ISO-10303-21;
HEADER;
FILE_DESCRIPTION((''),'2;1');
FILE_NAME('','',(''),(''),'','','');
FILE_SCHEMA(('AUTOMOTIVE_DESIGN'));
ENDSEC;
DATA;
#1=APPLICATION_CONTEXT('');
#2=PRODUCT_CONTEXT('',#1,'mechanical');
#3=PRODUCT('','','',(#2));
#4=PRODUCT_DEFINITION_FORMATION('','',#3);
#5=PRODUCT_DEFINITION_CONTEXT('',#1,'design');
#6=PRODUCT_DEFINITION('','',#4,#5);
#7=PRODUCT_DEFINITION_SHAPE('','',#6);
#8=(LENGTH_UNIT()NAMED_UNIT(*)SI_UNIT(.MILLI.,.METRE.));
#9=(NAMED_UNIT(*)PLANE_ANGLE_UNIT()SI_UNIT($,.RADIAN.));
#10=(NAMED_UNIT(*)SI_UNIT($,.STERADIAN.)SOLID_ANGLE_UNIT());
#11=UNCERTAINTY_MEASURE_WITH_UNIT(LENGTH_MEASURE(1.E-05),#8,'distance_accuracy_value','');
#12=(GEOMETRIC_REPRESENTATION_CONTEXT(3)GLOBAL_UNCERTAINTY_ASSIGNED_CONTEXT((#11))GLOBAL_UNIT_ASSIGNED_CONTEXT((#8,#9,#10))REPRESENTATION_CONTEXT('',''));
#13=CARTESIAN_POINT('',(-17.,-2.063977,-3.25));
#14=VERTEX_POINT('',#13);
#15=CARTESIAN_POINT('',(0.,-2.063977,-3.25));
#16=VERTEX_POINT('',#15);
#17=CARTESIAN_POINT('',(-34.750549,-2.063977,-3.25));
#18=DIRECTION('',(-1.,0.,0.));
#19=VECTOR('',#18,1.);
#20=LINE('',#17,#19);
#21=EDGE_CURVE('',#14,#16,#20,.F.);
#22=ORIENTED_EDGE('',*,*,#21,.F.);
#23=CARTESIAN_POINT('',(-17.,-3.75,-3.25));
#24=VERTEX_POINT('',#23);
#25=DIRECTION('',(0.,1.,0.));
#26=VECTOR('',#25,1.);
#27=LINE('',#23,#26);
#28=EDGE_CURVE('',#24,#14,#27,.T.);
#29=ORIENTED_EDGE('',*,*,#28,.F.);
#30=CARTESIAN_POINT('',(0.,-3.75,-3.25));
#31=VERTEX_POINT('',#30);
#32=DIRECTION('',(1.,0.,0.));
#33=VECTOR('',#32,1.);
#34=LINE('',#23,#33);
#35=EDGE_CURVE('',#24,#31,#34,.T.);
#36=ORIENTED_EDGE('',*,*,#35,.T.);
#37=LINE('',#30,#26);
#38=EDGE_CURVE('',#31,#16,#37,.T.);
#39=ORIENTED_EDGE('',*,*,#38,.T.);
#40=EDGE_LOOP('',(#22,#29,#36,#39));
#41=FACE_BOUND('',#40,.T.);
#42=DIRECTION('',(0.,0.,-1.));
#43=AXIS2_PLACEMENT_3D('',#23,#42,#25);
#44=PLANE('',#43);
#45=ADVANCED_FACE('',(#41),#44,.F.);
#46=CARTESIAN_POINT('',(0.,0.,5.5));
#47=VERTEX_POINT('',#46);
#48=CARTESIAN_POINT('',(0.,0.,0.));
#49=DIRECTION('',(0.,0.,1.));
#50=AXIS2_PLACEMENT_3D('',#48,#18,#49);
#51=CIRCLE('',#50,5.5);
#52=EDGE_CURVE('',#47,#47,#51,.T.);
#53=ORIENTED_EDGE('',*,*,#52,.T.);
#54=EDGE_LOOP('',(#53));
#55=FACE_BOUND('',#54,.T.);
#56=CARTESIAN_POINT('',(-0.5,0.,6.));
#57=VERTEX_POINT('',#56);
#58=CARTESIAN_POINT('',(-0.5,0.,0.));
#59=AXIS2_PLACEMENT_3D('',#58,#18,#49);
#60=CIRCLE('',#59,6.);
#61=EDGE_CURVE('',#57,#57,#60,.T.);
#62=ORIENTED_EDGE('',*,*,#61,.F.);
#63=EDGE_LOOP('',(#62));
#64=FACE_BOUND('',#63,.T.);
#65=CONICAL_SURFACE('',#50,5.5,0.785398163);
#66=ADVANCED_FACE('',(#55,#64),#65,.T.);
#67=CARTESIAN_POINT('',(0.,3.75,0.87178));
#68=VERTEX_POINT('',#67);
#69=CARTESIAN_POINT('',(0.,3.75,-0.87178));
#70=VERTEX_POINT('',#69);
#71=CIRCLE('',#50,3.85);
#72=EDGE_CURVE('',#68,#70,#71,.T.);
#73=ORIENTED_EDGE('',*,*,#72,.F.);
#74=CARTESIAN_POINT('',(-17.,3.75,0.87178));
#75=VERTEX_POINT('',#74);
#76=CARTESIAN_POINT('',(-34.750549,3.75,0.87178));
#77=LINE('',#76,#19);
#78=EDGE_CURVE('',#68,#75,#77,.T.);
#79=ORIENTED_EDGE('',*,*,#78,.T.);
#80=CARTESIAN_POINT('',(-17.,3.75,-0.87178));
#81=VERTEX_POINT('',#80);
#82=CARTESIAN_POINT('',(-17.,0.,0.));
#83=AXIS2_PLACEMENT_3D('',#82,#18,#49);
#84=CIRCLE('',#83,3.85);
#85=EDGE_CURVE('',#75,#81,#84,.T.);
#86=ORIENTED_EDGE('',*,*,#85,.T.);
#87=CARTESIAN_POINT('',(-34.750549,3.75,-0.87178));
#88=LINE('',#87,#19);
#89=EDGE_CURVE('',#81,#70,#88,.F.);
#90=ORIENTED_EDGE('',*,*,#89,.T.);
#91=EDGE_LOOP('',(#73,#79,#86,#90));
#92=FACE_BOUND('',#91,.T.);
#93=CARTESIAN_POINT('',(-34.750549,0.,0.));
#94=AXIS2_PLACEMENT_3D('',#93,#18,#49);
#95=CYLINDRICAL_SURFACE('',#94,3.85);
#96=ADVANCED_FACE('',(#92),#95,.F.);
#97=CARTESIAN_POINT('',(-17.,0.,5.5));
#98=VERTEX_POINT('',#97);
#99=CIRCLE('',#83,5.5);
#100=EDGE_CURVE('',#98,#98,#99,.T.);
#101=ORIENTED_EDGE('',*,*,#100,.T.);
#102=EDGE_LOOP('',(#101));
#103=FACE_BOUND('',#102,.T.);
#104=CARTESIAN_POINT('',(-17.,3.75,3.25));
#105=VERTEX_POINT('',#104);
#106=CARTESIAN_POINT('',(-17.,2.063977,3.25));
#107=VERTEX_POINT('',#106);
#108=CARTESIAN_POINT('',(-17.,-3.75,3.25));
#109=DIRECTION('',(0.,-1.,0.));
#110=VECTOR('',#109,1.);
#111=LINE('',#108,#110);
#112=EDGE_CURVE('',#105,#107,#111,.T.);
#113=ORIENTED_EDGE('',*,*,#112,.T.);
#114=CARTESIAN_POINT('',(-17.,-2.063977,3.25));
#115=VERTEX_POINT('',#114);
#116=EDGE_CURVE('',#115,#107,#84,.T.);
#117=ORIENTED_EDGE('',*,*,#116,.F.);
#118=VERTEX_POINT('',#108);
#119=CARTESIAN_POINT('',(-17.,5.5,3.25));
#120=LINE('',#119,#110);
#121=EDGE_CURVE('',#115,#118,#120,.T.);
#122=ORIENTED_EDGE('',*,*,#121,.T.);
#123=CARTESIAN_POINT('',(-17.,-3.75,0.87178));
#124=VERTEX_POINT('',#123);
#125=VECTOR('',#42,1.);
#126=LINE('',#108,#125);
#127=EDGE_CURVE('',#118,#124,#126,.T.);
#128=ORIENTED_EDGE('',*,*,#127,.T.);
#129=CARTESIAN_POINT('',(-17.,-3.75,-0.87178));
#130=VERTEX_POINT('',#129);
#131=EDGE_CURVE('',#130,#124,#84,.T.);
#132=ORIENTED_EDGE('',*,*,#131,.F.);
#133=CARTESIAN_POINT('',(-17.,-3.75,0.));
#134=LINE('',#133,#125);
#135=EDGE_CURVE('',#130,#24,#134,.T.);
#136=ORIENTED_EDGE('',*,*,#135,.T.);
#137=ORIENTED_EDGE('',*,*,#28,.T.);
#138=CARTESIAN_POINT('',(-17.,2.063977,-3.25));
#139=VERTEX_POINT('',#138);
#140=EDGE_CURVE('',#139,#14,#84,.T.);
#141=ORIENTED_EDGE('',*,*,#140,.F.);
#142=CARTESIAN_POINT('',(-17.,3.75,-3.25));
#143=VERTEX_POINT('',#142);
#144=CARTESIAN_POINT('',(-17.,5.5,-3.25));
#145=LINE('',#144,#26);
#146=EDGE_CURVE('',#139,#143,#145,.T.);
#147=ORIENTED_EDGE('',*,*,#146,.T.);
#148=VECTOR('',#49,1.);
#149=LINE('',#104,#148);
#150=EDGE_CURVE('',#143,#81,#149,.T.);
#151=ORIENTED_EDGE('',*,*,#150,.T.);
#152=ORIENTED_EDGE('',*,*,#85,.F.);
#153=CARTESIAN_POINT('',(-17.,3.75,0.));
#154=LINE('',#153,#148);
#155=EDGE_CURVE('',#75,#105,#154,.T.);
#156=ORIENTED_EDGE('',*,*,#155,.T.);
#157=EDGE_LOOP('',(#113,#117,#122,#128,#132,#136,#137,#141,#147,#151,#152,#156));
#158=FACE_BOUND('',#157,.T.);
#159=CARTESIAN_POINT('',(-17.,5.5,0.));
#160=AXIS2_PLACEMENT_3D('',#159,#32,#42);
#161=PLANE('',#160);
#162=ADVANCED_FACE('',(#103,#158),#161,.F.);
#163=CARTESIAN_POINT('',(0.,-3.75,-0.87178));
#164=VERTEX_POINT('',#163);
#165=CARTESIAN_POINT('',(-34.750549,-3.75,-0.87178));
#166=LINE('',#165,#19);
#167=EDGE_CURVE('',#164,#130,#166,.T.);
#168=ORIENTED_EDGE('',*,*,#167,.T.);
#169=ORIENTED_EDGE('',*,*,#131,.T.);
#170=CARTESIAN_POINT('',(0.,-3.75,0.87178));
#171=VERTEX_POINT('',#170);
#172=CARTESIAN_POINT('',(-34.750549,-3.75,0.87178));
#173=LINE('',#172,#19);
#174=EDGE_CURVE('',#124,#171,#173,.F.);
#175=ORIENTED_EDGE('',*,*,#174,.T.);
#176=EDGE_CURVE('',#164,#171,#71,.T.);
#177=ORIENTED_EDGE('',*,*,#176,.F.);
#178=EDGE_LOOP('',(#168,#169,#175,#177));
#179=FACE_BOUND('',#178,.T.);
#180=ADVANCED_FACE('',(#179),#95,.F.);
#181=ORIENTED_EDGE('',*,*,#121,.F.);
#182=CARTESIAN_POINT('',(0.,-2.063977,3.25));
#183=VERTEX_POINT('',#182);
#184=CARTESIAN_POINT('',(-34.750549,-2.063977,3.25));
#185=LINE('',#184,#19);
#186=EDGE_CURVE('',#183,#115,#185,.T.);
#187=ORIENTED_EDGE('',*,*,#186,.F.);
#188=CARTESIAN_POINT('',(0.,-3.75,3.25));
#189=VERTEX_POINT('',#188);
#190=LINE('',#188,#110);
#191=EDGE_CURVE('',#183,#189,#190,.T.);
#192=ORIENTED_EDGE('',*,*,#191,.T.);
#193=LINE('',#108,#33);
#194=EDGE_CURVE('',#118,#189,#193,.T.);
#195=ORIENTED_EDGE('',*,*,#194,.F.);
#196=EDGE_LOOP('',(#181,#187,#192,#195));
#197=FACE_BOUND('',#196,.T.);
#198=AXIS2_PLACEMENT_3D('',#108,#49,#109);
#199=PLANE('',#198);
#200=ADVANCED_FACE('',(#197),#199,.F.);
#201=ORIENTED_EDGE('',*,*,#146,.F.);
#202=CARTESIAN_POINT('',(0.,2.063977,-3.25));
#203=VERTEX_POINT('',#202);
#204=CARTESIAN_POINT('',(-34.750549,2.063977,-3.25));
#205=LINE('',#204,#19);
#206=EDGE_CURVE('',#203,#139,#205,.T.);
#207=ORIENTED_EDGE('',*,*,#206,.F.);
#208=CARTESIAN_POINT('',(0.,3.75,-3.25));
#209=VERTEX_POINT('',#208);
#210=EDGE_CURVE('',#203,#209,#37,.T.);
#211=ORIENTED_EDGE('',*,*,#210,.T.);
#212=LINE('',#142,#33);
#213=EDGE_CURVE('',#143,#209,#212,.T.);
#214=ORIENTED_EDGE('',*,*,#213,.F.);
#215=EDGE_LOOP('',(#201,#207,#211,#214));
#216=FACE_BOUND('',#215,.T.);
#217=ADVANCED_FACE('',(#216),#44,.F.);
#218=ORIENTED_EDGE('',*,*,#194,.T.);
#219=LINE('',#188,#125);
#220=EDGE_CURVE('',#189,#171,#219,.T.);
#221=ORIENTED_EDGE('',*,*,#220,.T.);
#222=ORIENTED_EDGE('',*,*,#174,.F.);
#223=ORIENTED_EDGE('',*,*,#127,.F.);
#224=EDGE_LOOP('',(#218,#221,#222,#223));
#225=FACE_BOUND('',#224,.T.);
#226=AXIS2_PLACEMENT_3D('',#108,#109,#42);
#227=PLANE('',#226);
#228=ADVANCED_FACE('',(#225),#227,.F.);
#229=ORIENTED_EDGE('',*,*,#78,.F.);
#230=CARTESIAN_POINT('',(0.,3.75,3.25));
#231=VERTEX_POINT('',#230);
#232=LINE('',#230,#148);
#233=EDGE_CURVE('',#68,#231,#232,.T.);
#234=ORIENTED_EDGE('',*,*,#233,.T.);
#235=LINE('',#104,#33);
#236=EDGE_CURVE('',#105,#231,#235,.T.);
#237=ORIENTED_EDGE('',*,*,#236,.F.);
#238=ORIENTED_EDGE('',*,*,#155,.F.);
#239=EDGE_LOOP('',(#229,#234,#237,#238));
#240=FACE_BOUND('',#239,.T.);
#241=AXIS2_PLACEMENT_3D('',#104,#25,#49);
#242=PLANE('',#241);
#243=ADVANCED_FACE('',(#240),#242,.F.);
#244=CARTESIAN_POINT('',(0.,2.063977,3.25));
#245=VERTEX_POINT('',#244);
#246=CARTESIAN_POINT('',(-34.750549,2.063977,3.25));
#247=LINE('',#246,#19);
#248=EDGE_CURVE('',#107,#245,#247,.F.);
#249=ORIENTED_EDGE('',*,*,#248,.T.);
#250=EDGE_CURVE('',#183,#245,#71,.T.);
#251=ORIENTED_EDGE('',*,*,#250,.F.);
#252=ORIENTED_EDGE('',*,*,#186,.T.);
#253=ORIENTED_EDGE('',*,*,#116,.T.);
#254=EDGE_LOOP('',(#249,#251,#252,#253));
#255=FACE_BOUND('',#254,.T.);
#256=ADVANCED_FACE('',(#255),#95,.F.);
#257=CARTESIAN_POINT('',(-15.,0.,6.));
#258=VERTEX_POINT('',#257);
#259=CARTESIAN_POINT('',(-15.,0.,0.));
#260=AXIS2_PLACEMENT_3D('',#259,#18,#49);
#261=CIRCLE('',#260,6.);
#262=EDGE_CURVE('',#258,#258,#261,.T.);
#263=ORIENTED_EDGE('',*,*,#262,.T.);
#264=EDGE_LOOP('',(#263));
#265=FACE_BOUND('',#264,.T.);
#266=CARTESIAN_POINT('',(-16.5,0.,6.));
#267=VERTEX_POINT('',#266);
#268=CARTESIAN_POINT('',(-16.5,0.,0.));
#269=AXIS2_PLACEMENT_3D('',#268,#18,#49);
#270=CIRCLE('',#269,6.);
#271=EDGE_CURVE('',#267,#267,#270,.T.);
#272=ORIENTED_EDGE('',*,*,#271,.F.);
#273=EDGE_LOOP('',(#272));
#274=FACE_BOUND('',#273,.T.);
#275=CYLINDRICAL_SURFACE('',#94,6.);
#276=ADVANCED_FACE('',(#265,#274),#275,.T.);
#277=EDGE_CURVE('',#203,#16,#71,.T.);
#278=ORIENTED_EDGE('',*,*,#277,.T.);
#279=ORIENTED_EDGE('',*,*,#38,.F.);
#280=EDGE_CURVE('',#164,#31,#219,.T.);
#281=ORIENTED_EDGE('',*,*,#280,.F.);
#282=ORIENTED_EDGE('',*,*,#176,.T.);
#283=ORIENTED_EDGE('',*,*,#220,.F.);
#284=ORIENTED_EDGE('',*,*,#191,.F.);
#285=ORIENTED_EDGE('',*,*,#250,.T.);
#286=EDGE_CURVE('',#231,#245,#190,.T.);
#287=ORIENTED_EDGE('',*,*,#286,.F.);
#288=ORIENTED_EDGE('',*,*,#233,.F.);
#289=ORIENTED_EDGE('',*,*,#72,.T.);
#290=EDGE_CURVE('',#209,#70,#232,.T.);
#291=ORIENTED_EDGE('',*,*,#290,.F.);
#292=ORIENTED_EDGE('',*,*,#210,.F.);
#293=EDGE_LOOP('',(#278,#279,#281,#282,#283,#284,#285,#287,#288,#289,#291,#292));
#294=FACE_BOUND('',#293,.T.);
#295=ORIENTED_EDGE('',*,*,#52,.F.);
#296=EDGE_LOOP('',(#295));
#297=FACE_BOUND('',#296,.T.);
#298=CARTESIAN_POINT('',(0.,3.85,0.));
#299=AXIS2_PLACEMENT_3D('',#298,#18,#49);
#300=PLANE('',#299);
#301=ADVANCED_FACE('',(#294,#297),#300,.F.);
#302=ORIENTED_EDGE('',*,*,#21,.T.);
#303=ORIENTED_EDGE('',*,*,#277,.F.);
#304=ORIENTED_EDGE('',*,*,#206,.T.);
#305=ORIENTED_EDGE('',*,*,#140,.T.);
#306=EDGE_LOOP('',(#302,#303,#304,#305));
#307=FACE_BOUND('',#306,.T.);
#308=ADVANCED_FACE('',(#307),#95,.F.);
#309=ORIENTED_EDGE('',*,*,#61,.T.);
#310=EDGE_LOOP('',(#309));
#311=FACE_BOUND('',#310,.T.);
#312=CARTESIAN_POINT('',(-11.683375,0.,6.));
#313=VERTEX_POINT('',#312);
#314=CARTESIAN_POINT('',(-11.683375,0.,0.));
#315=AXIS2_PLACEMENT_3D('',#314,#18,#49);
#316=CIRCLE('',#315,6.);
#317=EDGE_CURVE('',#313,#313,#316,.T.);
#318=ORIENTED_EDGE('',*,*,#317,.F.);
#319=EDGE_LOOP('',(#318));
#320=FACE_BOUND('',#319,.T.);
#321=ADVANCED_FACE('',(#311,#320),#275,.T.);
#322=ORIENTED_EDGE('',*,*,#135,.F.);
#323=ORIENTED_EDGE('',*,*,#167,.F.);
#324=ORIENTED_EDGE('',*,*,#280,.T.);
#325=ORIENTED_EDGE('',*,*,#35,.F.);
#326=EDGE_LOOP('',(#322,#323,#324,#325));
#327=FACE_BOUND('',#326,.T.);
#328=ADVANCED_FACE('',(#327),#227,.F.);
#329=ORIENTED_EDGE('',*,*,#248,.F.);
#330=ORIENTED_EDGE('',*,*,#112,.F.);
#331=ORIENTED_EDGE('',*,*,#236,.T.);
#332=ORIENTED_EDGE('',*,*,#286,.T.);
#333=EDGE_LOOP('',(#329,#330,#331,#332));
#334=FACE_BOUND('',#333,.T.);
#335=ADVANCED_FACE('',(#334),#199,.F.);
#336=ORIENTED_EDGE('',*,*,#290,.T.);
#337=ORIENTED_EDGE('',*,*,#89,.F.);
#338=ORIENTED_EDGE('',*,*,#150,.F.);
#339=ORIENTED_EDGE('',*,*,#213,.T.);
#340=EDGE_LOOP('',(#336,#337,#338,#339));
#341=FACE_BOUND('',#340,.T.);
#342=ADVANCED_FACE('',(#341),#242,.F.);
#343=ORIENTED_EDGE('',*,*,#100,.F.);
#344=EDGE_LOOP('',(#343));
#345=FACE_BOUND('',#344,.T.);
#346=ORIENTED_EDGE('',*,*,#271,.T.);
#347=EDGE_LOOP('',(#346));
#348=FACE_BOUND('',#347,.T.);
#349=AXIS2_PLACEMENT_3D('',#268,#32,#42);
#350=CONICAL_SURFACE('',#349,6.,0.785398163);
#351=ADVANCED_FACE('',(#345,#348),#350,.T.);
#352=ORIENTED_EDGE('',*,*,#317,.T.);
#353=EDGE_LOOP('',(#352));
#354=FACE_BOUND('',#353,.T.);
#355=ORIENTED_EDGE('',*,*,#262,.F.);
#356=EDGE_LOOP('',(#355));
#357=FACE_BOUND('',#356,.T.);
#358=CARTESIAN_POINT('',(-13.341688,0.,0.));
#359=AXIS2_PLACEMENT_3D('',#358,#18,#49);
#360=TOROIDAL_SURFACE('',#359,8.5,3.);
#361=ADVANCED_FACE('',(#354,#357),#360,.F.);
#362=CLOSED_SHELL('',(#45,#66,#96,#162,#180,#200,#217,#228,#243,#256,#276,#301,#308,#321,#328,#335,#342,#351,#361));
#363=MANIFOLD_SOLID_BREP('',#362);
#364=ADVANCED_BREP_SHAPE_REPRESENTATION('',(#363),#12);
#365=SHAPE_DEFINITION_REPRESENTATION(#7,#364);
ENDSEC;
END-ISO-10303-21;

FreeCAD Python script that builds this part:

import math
import FreeCAD as App
import Part
import Sketcher

V = App.Vector
Q = App.Units.Quantity


def add_polygon(sketch, points):
    """Adds a closed chain of lines whose ends are joined by coincident constraints."""
    first, n = sketch.GeometryCount, len(points)
    for a, b in zip(points, points[1:] + points[:1]):
        sketch.addGeometry(Part.LineSegment(App.Vector(*a, 0), App.Vector(*b, 0)), False)
    for i in range(n):
        sketch.addConstraint(Sketcher.Constraint("Coincident", first + i, 2, first + (i + 1) % n, 1))

doc = App.newDocument("Part")
body = doc.addObject("PartDesign::Body", "Body")

sketch1 = doc.addObject("Sketcher::SketchObject", "Sketch")
body.addObject(sketch1)
sketch1.AttachmentSupport = (doc.XY_Plane, [""])
sketch1.MapMode = "FlatFace"
sketch1.addGeometry(Part.LineSegment(V(-17, 5.5, 0), V(-17, 3.9, 0)), False)
sketch1.addGeometry(Part.LineSegment(V(-17, 3.9, 0), V(0, 3.9, 0)), False)
sketch1.addGeometry(Part.LineSegment(V(0, 3.9, 0), V(0, 5.5, 0)), False)
sketch1.addGeometry(Part.LineSegment(V(0, 5.5, 0), V(-0.5, 6, 0)), False)
sketch1.addGeometry(Part.LineSegment(V(-0.5, 6, 0), V(-11.7, 6, 0)), False)
sketch1.addGeometry(Part.ArcOfCircle(Part.Circle(V(-13.3, 8.5, 0), V(0, 0, 1), 3), math.radians(-124), math.radians(-56)), False)
sketch1.addGeometry(Part.LineSegment(V(-15, 6, 0), V(-16.5, 6, 0)), False)
sketch1.addGeometry(Part.LineSegment(V(-16.5, 6, 0), V(-17, 5.5, 0)), False)
sketch1.addConstraint(Sketcher.Constraint("Coincident", 0, 2, 1, 1))
sketch1.addConstraint(Sketcher.Constraint("Coincident", 1, 2, 2, 1))
sketch1.addConstraint(Sketcher.Constraint("Coincident", 2, 2, 3, 1))
sketch1.addConstraint(Sketcher.Constraint("Coincident", 3, 2, 4, 1))
sketch1.addConstraint(Sketcher.Constraint("Coincident", 4, 2, 5, 2))
sketch1.addConstraint(Sketcher.Constraint("Coincident", 5, 1, 6, 1))
sketch1.addConstraint(Sketcher.Constraint("Coincident", 6, 2, 7, 1))
sketch1.addConstraint(Sketcher.Constraint("Coincident", 7, 2, 0, 1))
sketch1.addConstraint(Sketcher.Constraint("Vertical", 0))
sketch1.addConstraint(Sketcher.Constraint("Horizontal", 1))
sketch1.addConstraint(Sketcher.Constraint("Vertical", 2))
sketch1.addConstraint(Sketcher.Constraint("Horizontal", 4))
sketch1.addConstraint(Sketcher.Constraint("Horizontal", 6))
sketch1.addConstraint(Sketcher.Constraint("PointOnObject", 1, 2, -2))
sketch1.addConstraint(Sketcher.Constraint("Perpendicular", 3, 7))
sketch1.addConstraint(Sketcher.Constraint("Horizontal", 4, 2, 5, 1))
sketch1.addConstraint(Sketcher.Constraint("Horizontal", 2, 2, 7, 2))
sketch1.addConstraint(Sketcher.Constraint("Equal", 3, 7))
sketch1.addConstraint(Sketcher.Constraint("Radius", 5, Q("3 mm")))
sketch1.addConstraint(Sketcher.Constraint("DistanceX", 1, 1, 1, 2, Q("17 mm")))
sketch1.addConstraint(Sketcher.Constraint("DistanceX", 6, 2, 6, 1, Q("1.5 mm")))
sketch1.addConstraint(Sketcher.Constraint("DistanceY", -1, 1, 3, 2, Q("6 mm")))
sketch1.addConstraint(Sketcher.Constraint("DistanceX", 5, 1, -1, 1, Q("15 mm")))
sketch1.addConstraint(Sketcher.Constraint("DistanceY", 2, 2, 5, 3, Q("3 mm")))
sketch1.addConstraint(Sketcher.Constraint("DistanceY", 0, 2, 0, 1, Q("1.65 mm")))
revolution = doc.addObject("PartDesign::Revolution", "Revolution")
body.addObject(revolution)
revolution.Profile = sketch1
revolution.ReferenceAxis = (sketch1, ["H_Axis"])
revolution.Angle = 360

sketch2 = doc.addObject("Sketcher::SketchObject", "Sketch001")
body.addObject(sketch2)
sketch2.AttachmentSupport = (doc.YZ_Plane, [""])
sketch2.MapMode = "FlatFace"
add_polygon(sketch2, [(4, 3), (-4, 3), (-4, -3), (4, -3)])
sketch2.addConstraint(Sketcher.Constraint("Horizontal", 0))
sketch2.addConstraint(Sketcher.Constraint("Vertical", 1))
sketch2.addConstraint(Sketcher.Constraint("Horizontal", 2))
sketch2.addConstraint(Sketcher.Constraint("Vertical", 3))
sketch2.addConstraint(Sketcher.Constraint("Symmetric", 0, 2, 2, 2, -1, 1))
sketch2.addConstraint(Sketcher.Constraint("DistanceX", 0, 2, 0, 1, Q("7.5 mm")))
sketch2.addConstraint(Sketcher.Constraint("DistanceY", 1, 2, 1, 1, Q("6.5 mm")))
pocket1 = doc.addObject("PartDesign::Pocket", "Pocket")
body.addObject(pocket1)
pocket1.Profile = sketch2
pocket1.Type = "ThroughAll"

doc.recompute()
